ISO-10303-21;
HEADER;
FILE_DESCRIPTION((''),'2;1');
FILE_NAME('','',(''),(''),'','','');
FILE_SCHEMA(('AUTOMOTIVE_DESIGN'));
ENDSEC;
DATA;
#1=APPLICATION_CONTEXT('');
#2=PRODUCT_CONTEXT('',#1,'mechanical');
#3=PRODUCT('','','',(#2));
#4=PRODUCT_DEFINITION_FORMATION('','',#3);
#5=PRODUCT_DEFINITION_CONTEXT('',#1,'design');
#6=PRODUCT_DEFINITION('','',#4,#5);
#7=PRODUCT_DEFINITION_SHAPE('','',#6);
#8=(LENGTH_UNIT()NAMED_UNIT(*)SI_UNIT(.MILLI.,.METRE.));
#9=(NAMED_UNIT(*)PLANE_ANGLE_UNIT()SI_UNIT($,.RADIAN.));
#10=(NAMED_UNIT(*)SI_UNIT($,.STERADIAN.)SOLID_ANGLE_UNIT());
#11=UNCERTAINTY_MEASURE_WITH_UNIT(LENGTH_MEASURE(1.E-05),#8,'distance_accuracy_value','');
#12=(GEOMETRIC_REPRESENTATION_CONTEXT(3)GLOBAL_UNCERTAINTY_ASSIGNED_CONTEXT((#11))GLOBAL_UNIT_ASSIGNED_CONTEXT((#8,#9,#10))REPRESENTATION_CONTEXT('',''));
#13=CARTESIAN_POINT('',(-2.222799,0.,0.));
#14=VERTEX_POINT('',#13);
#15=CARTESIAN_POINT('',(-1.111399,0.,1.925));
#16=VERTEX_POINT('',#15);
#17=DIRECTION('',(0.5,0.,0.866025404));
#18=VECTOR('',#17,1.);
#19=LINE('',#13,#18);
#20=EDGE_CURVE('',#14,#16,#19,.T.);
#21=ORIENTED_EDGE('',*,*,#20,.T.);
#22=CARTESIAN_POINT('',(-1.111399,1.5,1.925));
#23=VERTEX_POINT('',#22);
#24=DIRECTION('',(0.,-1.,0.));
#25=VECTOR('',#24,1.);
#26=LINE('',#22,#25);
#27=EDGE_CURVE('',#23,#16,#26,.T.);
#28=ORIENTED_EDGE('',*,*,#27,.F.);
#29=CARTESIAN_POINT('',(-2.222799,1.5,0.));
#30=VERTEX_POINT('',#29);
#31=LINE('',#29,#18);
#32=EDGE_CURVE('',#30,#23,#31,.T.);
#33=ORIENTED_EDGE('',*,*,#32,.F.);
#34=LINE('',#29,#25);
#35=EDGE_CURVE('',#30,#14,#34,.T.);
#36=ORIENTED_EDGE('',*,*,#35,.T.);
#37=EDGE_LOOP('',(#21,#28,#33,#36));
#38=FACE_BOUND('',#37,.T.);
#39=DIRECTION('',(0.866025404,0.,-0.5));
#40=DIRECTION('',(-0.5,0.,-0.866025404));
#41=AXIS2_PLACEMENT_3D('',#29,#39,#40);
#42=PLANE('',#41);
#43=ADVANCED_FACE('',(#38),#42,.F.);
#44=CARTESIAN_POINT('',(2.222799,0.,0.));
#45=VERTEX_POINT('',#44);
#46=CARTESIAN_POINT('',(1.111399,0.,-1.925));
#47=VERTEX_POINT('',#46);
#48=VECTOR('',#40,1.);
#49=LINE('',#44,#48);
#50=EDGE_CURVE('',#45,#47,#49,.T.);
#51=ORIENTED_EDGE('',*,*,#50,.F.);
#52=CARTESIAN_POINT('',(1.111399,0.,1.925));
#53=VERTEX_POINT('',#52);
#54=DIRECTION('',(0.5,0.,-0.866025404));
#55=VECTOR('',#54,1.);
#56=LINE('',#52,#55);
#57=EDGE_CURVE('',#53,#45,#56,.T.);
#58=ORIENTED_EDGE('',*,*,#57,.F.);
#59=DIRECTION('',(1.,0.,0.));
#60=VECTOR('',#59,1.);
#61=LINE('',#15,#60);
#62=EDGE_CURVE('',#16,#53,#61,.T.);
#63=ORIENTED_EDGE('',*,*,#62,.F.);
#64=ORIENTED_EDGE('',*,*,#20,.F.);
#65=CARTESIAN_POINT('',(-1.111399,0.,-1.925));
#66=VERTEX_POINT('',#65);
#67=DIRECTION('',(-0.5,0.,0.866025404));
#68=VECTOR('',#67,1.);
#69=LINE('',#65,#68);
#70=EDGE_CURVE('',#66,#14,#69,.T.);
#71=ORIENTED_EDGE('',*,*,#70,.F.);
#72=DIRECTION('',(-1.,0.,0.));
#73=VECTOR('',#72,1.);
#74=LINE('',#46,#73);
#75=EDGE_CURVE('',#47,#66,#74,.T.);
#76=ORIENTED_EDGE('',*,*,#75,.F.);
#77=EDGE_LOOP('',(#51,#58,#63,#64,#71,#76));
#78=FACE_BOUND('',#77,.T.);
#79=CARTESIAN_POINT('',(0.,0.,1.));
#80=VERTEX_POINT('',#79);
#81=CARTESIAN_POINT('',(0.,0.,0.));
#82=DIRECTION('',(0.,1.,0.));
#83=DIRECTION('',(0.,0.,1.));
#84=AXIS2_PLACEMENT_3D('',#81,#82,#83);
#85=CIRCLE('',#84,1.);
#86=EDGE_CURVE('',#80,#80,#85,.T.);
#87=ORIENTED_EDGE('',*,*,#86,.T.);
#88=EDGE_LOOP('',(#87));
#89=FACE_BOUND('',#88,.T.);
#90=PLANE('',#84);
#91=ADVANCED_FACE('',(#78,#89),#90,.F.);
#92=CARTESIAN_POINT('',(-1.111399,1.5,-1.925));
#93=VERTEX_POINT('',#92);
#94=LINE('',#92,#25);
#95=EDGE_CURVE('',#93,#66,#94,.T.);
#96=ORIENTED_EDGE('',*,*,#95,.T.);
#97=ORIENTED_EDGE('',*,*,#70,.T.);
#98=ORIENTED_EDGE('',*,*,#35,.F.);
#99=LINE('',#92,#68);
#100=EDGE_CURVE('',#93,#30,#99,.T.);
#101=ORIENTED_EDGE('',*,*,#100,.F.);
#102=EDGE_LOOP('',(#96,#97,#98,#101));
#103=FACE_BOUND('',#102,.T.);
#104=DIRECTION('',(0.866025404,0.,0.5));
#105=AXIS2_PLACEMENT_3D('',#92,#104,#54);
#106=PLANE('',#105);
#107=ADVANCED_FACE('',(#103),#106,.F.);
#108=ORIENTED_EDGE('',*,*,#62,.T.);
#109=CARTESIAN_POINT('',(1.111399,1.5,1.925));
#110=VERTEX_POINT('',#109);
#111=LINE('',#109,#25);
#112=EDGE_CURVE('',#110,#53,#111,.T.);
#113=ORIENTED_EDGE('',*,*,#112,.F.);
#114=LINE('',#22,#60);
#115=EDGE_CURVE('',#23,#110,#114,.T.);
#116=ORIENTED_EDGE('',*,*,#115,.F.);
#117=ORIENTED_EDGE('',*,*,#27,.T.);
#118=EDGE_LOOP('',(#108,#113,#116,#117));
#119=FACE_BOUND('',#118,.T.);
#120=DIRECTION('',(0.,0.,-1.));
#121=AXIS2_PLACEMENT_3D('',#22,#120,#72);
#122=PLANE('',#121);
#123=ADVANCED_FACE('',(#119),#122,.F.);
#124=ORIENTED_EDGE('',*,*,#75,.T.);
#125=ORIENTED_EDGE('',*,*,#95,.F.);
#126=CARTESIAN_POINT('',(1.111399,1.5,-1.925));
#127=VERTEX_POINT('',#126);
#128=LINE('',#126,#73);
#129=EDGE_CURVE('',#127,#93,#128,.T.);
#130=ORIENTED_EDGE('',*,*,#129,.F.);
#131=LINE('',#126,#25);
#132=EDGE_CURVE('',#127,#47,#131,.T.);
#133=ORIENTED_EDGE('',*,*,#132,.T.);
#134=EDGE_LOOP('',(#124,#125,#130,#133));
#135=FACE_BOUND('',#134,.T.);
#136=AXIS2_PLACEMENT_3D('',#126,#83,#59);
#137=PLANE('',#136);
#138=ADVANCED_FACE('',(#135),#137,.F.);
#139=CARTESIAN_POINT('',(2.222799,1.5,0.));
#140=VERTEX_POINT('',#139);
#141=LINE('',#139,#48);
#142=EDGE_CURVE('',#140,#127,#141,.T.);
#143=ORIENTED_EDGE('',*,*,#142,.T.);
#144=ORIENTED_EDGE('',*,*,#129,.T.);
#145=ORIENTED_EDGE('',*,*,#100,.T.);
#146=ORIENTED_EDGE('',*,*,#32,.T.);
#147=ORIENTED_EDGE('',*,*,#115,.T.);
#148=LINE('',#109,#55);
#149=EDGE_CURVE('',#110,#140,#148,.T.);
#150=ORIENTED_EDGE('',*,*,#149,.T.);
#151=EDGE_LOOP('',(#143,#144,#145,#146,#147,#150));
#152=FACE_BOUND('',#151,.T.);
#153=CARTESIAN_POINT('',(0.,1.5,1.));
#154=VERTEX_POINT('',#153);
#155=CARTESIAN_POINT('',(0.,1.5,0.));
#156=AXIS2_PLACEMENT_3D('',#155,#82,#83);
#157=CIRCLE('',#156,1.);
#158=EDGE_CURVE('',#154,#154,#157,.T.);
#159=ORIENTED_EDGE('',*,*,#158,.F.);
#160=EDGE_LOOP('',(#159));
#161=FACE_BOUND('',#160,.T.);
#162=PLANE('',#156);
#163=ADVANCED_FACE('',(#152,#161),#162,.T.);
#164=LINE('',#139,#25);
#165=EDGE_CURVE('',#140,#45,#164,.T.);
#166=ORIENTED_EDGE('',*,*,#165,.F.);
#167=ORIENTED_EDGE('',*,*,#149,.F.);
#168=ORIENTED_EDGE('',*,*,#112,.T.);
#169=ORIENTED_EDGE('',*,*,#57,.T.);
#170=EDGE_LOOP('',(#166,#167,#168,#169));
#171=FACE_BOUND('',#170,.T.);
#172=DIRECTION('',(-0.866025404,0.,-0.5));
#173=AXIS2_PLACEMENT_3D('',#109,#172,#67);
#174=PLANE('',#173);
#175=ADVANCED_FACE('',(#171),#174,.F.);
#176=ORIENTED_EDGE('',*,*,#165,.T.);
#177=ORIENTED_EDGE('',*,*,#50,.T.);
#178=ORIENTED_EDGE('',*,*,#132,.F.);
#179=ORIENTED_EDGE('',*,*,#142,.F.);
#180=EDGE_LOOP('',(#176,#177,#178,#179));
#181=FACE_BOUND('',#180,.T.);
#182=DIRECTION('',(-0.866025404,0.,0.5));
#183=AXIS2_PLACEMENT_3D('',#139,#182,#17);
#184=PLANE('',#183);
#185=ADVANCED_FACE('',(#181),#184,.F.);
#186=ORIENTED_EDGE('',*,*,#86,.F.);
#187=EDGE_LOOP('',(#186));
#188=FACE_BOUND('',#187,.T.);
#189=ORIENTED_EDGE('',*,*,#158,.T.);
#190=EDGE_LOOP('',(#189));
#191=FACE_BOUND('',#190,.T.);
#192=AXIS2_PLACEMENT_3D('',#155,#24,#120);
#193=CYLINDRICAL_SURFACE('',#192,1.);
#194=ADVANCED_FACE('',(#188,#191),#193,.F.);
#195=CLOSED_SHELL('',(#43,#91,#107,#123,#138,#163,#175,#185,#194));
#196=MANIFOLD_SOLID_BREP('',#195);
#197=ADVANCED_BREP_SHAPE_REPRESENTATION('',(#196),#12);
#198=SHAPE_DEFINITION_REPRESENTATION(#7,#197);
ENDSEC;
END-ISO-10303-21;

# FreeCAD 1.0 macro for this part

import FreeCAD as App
import Part
import Sketcher

V = App.Vector
Q = App.Units.Quantity

doc = App.newDocument("Part")
body = doc.addObject("PartDesign::Body", "Body")

# Sketch on XZ plane
sketch1 = body.newObject("Sketcher::SketchObject", "Sketch")
sketch1.AttachmentSupport = (doc.getObject("XZ_Plane"), [""])
sketch1.MapMode = "FlatFace"
sketch1.addGeometry(Part.LineSegment(V(1.1, -1.9, 0), V(-1.1, -1.9, 0)), False)
sketch1.addGeometry(Part.LineSegment(V(-1.1, -1.9, 0), V(-2.2, 0, 0)), False)
sketch1.addGeometry(Part.LineSegment(V(-2.2, 0, 0), V(-1.1, 1.9, 0)), False)
sketch1.addGeometry(Part.LineSegment(V(-1.1, 1.9, 0), V(1.1, 1.9, 0)), False)
sketch1.addGeometry(Part.LineSegment(V(1.1, 1.9, 0), V(2.2, 0, 0)), False)
sketch1.addGeometry(Part.LineSegment(V(2.2, 0, 0), V(1.1, -1.9, 0)), False)
sketch1.addGeometry(Part.Circle(V(0, 0, 0), V(0, 0, 1), 1), False)
sketch1.addConstraint(Sketcher.Constraint("Coincident", 0, 2, 1, 1))
sketch1.addConstraint(Sketcher.Constraint("Coincident", 1, 2, 2, 1))
sketch1.addConstraint(Sketcher.Constraint("Coincident", 2, 2, 3, 1))
sketch1.addConstraint(Sketcher.Constraint("Coincident", 3, 2, 4, 1))
sketch1.addConstraint(Sketcher.Constraint("Coincident", 4, 2, 5, 1))
sketch1.addConstraint(Sketcher.Constraint("Coincident", 5, 2, 0, 1))
sketch1.addConstraint(Sketcher.Constraint("Horizontal", 0))
sketch1.addConstraint(Sketcher.Constraint("Horizontal", 3))
sketch1.addConstraint(Sketcher.Constraint("Coincident", 6, 3, -1, 1))
sketch1.addConstraint(Sketcher.Constraint("Symmetric", 0, 2, 3, 2, -1, 1))
sketch1.addConstraint(Sketcher.Constraint("Symmetric", 1, 2, 4, 2, -1, 1))
sketch1.addConstraint(Sketcher.Constraint("PointOnObject", 1, 2, -1))
sketch1.addConstraint(Sketcher.Constraint("Parallel", 2, 5))
sketch1.addConstraint(Sketcher.Constraint("Vertical", 0, 2, 2, 2))
sketch1.addConstraint(Sketcher.Constraint("Diameter", 6, Q("2 mm")))
sketch1.addConstraint(Sketcher.Constraint("Angle", 1, Q("120 deg")))
sketch1.addConstraint(Sketcher.Constraint("DistanceY", 0, 2, 2, 2, Q("3.85 mm")))
sketch1.addConstraint(Sketcher.Constraint("DistanceX", 0, 2, 0, 1, Q("2.222799 mm")))
pad1 = body.newObject("PartDesign::Pad", "Pad")
pad1.Profile = sketch1
pad1.Length = 1.5
pad1.Reversed = True

doc.recompute()
